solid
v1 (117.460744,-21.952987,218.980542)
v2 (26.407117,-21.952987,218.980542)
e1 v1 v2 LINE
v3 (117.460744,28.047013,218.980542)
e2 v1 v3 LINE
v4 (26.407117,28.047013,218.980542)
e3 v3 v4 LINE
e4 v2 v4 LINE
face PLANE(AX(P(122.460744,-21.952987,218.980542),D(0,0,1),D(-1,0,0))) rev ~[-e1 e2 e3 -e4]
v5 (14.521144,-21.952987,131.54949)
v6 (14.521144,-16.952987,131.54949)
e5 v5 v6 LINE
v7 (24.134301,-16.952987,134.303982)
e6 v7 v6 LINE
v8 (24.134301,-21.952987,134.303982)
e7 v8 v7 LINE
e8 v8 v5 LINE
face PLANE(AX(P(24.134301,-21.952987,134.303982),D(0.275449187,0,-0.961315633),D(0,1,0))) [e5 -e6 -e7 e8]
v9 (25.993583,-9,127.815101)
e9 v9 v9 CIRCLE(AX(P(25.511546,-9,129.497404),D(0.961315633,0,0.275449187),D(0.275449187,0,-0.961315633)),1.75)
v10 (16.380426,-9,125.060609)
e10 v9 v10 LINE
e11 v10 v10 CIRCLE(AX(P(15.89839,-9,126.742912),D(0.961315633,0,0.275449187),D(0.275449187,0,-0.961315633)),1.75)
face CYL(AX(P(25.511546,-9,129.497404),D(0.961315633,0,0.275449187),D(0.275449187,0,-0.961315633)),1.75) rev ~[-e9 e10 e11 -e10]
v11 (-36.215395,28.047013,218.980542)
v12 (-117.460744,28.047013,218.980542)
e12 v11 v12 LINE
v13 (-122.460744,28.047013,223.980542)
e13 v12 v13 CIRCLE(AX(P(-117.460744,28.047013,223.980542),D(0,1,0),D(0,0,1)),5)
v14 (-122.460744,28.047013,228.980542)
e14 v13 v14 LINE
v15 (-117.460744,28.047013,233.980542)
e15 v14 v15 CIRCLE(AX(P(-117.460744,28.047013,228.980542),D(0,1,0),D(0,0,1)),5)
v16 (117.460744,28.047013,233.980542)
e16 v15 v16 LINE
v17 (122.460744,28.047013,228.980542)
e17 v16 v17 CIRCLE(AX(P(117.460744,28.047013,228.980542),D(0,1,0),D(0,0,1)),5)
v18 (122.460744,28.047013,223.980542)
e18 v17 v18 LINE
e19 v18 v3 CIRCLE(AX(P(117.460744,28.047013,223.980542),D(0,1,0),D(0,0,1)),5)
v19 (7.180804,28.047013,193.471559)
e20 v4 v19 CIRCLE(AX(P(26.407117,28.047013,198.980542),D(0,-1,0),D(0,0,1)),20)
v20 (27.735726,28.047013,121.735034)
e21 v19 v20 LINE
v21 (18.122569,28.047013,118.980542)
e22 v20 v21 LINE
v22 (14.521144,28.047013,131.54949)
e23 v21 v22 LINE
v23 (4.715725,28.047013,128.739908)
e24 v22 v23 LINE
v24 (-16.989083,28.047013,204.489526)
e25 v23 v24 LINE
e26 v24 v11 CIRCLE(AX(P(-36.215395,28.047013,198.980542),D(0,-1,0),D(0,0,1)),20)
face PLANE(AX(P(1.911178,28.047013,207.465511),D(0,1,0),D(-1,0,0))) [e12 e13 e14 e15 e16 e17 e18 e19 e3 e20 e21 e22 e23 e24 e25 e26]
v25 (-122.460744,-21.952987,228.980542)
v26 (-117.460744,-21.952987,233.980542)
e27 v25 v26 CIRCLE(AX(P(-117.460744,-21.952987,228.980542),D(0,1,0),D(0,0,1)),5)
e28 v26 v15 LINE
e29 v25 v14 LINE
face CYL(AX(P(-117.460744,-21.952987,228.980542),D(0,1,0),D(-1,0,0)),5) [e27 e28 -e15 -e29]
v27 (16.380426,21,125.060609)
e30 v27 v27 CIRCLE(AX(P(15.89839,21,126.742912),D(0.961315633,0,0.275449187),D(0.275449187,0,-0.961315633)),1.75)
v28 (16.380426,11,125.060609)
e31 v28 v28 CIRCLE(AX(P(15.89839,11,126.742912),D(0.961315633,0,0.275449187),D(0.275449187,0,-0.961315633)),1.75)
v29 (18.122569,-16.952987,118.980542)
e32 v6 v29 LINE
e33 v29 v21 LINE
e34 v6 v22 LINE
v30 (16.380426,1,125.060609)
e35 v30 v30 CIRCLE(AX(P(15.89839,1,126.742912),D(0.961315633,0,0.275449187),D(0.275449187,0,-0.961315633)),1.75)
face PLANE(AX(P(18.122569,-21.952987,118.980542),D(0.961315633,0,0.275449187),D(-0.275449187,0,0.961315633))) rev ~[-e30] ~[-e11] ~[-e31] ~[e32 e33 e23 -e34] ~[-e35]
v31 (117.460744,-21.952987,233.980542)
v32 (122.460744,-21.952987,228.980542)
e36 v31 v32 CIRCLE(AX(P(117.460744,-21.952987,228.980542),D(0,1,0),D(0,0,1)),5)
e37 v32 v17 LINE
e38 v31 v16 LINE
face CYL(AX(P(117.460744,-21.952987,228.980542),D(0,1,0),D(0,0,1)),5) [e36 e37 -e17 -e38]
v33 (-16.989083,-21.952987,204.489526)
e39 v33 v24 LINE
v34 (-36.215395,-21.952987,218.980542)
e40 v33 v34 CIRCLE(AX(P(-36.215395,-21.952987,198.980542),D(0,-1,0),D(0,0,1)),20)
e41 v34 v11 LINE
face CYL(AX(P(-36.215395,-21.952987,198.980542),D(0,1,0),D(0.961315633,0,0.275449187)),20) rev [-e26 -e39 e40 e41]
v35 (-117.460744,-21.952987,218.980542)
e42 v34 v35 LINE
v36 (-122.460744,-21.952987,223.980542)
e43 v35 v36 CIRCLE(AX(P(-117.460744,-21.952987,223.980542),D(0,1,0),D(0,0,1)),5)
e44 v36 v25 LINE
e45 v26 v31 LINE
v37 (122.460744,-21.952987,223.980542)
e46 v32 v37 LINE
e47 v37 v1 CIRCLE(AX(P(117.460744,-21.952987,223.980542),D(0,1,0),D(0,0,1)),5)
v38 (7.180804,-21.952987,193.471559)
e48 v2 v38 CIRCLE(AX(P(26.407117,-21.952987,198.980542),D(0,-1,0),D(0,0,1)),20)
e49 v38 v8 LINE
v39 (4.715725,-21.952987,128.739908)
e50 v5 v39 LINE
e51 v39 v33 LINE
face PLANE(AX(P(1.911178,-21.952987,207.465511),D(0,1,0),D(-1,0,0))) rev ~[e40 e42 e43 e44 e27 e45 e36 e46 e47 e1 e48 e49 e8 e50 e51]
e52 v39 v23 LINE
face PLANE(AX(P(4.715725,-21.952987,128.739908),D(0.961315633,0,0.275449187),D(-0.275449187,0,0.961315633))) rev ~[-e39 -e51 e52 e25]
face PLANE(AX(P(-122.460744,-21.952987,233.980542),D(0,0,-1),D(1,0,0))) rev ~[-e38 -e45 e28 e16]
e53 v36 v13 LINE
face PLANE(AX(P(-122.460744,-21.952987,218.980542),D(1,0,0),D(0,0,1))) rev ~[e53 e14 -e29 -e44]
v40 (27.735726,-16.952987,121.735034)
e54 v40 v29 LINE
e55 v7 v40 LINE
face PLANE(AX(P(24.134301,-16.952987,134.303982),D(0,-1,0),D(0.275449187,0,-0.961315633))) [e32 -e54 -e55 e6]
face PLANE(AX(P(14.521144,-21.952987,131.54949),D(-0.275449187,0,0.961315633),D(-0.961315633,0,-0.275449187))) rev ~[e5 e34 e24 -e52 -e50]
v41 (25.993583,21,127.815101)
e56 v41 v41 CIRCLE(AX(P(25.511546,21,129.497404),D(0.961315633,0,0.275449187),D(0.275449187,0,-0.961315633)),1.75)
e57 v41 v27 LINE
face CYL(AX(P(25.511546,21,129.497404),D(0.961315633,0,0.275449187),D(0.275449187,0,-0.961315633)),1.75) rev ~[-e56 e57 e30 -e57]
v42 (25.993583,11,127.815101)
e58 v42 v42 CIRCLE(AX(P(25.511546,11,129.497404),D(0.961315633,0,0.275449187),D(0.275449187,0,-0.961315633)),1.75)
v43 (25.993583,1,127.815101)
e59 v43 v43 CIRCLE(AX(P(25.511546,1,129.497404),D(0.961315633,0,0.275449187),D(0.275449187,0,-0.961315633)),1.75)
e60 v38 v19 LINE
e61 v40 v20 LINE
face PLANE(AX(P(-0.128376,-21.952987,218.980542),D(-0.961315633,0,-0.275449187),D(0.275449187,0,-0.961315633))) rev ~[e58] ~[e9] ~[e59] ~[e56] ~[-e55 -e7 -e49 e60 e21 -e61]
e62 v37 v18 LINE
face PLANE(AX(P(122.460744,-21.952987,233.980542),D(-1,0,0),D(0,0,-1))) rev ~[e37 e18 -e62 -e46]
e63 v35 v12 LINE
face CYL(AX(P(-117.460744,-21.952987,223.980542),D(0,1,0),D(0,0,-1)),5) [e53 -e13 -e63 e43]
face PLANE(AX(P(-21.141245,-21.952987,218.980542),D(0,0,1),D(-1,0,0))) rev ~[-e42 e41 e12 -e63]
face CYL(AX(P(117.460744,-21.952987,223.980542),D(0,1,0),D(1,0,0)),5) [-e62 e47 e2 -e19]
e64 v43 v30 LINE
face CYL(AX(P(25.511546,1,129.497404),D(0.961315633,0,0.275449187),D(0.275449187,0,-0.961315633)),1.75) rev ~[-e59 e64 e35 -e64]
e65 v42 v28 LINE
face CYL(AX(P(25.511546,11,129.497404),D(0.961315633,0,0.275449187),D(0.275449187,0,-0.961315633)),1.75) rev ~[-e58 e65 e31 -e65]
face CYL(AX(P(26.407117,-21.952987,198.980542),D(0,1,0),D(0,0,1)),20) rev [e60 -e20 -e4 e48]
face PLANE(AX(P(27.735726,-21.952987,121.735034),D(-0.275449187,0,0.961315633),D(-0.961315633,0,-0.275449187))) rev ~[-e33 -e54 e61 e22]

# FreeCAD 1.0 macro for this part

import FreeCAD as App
import Part
import Sketcher
from FreeCAD import Vector
Q = App.Units.Quantity


def edges_at(feature, points):
    """Names of the edges that pass closest to the given points."""
    edges = feature.Shape.Edges
    near = lambda p: min(range(len(edges)), key=lambda i: edges[i].distToShape(Part.Vertex(*p))[0])
    return sorted({f"Edge{near(p) + 1}" for p in points})


def add_polygon(sketch, points):
    """Adds a closed chain of lines whose ends are joined by coincident constraints."""
    first, n = sketch.GeometryCount, len(points)
    for a, b in zip(points, points[1:] + points[:1]):
        sketch.addGeometry(Part.LineSegment(App.Vector(*a, 0), App.Vector(*b, 0)), False)
    for i in range(n):
        sketch.addConstraint(Sketcher.Constraint("Coincident", first + i, 2, first + (i + 1) % n, 1))

doc = App.newDocument("Part")
body = doc.addObject("PartDesign::Body", "Body")

# Sketch on XZ plane
sketch1 = doc.addObject("Sketcher::SketchObject", "Sketch")
body.addObject(sketch1)
sketch1.AttachmentSupport = (doc.XZ_Plane, [""])
sketch1.MapMode = "FlatFace"
sketch1.AttachmentOffset = App.Placement(Vector(0, 0, 21.952987), App.Rotation())
add_polygon(sketch1, [(18, 119), (28, 122), (0, 219), (122, 219), (122, 234), (-122, 234), (-122, 219), (-21, 219), (5, 129), (15, 132)])  # lines 0-9
sketch1.addConstraint([
    Sketcher.Constraint("Horizontal", 2),
    Sketcher.Constraint("Vertical", 3),
    Sketcher.Constraint("Horizontal", 4),
    Sketcher.Constraint("Vertical", 5),
    Sketcher.Constraint("Horizontal", 6),
    Sketcher.Constraint("Symmetric", 2, 2, 5, 2, -2),
    Sketcher.Constraint("Perpendicular", 0, 1),
    Sketcher.Constraint("Parallel", 1, 7),
    Sketcher.Constraint("Perpendicular", 7, 8),
    Sketcher.Constraint("Perpendicular", 8, 9),
    Sketcher.Constraint("DistanceY", 3, 1, 3, 2, Q("15 mm")),
    Sketcher.Constraint("Distance", 0, Q("10 mm")),
    Sketcher.Constraint("DistanceY", 9, 2, 1, 2, Q("100 mm")),
    Sketcher.Constraint("Distance", 8, Q("10.2 mm")),
    Sketcher.Constraint("DistanceX", 7, 2, 0, 2, Q("23.020001 mm")),
    Sketcher.Constraint("DistanceX", 6, 1, 6, 2, Q("101.319499 mm")),
    Sketcher.Constraint("DistanceX", 2, 1, 2, 2, Q("122.589119 mm")),
    Sketcher.Constraint("DistanceX", 1, 2, 0, 2, Q("27.864101 mm")),
    Sketcher.Constraint("DistanceY", -1, 1, 7, 2, Q("128.739908 mm")),
])
pad1 = doc.addObject("PartDesign::Pad", "Pad")
body.addObject(pad1)
pad1.Profile = sketch1
pad1.Length = 50
pad1.Reversed = True
doc.recompute()

fillet = doc.addObject("PartDesign::Fillet", "Fillet")
body.addObject(fillet)
fillet.Base = (pad1, edges_at(pad1, [(-21.141, 3.047, 218.981), (-0.128, 3.047, 218.981)]))
fillet.Radius = 20
doc.recompute()

fillet2 = doc.addObject("PartDesign::Fillet", "Fillet001")
body.addObject(fillet2)
fillet2.Base = (fillet, edges_at(fillet, [
    (-122.461, 3.047, 218.981),
    (-122.461, 3.047, 233.981),
    (122.461, 3.047, 233.981),
    (122.461, 3.047, 218.981),
]))
fillet2.Radius = 5

# Sketch on an angled plane
sketch2 = doc.addObject("Sketcher::SketchObject", "Sketch001")
body.addObject(sketch2)
sketch2.Placement = App.Placement(Vector(57.866013, 0, 16.580554), App.Rotation(Vector(0.275449187, 0, -0.961315633), Vector(0, 1.000000001, 0), Vector(0.961315633, 0, 0.275449187), "ZXY"))
sketch2.addGeometry([
    Part.Circle(Vector(-117.5, -9, 0), Vector(0, 0, 1), 1.8),
    Part.Circle(Vector(-117.5, 1, 0), Vector(0, 0, 1), 1.8),
    Part.Circle(Vector(-117.5, 11, 0), Vector(0, 0, 1), 1.8),
    Part.Circle(Vector(-117.5, 21, 0), Vector(0, 0, 1), 1.8),
], False)
sketch2.addConstraint([
    Sketcher.Constraint("Equal", 0, 1),
    Sketcher.Constraint("Equal", 1, 2),
    Sketcher.Constraint("Equal", 2, 3),
    Sketcher.Constraint("Vertical", 0, 3, 1, 3),
    Sketcher.Constraint("Vertical", 1, 3, 2, 3),
    Sketcher.Constraint("Vertical", 2, 3, 3, 3),
    Sketcher.Constraint("Diameter", 0, Q("3.5 mm")),
    Sketcher.Constraint("DistanceY", 0, 3, -1, 1, Q("9 mm")),
    Sketcher.Constraint("DistanceY", -1, 1, 1, 3, Q("1 mm")),
    Sketcher.Constraint("DistanceY", -1, 1, 2, 3, Q("11 mm")),
    Sketcher.Constraint("DistanceY", -1, 1, 3, 3, Q("21 mm")),
    Sketcher.Constraint("DistanceX", 0, 3, -1, 1, Q("117.460744 mm")),
])
pocket1 = doc.addObject("PartDesign::Pocket", "Pocket")
body.addObject(pocket1)
pocket1.Profile = sketch2
pocket1.Length = 10

# Sketch on an angled plane
sketch3 = doc.addObject("Sketcher::SketchObject", "Sketch002")
body.addObject(sketch3)
sketch3.Placement = App.Placement(Vector(57.866013, 0, 16.580554), App.Rotation(Vector(0.275449187, 0, -0.961315633), Vector(0, 1.000000001, 0), Vector(0.961315633, 0, 0.275449187), "ZXY"))
add_polygon(sketch3, [(-122, -17), (-122, -22), (-109, -22), (-109, -17)])  # lines 0-3
sketch3.addConstraint([
    Sketcher.Constraint("Vertical", 0),
    Sketcher.Constraint("Horizontal", 1),
    Sketcher.Constraint("Vertical", 2),
    Sketcher.Constraint("Horizontal", 3),
    Sketcher.Constraint("DistanceY", 0, 2, 0, 1, Q("5 mm")),
    Sketcher.Constraint("DistanceX", 1, 1, 1, 2, Q("13.074735 mm")),
    Sketcher.Constraint("DistanceX", 1, 2, -1, 1, Q("109.386008 mm")),
    Sketcher.Constraint("DistanceY", 0, 2, -1, 1, Q("21.952987 mm")),
])
pocket2 = doc.addObject("PartDesign::Pocket", "Pocket001")
body.addObject(pocket2)
pocket2.Profile = sketch3
pocket2.Length = 10

doc.recompute()
